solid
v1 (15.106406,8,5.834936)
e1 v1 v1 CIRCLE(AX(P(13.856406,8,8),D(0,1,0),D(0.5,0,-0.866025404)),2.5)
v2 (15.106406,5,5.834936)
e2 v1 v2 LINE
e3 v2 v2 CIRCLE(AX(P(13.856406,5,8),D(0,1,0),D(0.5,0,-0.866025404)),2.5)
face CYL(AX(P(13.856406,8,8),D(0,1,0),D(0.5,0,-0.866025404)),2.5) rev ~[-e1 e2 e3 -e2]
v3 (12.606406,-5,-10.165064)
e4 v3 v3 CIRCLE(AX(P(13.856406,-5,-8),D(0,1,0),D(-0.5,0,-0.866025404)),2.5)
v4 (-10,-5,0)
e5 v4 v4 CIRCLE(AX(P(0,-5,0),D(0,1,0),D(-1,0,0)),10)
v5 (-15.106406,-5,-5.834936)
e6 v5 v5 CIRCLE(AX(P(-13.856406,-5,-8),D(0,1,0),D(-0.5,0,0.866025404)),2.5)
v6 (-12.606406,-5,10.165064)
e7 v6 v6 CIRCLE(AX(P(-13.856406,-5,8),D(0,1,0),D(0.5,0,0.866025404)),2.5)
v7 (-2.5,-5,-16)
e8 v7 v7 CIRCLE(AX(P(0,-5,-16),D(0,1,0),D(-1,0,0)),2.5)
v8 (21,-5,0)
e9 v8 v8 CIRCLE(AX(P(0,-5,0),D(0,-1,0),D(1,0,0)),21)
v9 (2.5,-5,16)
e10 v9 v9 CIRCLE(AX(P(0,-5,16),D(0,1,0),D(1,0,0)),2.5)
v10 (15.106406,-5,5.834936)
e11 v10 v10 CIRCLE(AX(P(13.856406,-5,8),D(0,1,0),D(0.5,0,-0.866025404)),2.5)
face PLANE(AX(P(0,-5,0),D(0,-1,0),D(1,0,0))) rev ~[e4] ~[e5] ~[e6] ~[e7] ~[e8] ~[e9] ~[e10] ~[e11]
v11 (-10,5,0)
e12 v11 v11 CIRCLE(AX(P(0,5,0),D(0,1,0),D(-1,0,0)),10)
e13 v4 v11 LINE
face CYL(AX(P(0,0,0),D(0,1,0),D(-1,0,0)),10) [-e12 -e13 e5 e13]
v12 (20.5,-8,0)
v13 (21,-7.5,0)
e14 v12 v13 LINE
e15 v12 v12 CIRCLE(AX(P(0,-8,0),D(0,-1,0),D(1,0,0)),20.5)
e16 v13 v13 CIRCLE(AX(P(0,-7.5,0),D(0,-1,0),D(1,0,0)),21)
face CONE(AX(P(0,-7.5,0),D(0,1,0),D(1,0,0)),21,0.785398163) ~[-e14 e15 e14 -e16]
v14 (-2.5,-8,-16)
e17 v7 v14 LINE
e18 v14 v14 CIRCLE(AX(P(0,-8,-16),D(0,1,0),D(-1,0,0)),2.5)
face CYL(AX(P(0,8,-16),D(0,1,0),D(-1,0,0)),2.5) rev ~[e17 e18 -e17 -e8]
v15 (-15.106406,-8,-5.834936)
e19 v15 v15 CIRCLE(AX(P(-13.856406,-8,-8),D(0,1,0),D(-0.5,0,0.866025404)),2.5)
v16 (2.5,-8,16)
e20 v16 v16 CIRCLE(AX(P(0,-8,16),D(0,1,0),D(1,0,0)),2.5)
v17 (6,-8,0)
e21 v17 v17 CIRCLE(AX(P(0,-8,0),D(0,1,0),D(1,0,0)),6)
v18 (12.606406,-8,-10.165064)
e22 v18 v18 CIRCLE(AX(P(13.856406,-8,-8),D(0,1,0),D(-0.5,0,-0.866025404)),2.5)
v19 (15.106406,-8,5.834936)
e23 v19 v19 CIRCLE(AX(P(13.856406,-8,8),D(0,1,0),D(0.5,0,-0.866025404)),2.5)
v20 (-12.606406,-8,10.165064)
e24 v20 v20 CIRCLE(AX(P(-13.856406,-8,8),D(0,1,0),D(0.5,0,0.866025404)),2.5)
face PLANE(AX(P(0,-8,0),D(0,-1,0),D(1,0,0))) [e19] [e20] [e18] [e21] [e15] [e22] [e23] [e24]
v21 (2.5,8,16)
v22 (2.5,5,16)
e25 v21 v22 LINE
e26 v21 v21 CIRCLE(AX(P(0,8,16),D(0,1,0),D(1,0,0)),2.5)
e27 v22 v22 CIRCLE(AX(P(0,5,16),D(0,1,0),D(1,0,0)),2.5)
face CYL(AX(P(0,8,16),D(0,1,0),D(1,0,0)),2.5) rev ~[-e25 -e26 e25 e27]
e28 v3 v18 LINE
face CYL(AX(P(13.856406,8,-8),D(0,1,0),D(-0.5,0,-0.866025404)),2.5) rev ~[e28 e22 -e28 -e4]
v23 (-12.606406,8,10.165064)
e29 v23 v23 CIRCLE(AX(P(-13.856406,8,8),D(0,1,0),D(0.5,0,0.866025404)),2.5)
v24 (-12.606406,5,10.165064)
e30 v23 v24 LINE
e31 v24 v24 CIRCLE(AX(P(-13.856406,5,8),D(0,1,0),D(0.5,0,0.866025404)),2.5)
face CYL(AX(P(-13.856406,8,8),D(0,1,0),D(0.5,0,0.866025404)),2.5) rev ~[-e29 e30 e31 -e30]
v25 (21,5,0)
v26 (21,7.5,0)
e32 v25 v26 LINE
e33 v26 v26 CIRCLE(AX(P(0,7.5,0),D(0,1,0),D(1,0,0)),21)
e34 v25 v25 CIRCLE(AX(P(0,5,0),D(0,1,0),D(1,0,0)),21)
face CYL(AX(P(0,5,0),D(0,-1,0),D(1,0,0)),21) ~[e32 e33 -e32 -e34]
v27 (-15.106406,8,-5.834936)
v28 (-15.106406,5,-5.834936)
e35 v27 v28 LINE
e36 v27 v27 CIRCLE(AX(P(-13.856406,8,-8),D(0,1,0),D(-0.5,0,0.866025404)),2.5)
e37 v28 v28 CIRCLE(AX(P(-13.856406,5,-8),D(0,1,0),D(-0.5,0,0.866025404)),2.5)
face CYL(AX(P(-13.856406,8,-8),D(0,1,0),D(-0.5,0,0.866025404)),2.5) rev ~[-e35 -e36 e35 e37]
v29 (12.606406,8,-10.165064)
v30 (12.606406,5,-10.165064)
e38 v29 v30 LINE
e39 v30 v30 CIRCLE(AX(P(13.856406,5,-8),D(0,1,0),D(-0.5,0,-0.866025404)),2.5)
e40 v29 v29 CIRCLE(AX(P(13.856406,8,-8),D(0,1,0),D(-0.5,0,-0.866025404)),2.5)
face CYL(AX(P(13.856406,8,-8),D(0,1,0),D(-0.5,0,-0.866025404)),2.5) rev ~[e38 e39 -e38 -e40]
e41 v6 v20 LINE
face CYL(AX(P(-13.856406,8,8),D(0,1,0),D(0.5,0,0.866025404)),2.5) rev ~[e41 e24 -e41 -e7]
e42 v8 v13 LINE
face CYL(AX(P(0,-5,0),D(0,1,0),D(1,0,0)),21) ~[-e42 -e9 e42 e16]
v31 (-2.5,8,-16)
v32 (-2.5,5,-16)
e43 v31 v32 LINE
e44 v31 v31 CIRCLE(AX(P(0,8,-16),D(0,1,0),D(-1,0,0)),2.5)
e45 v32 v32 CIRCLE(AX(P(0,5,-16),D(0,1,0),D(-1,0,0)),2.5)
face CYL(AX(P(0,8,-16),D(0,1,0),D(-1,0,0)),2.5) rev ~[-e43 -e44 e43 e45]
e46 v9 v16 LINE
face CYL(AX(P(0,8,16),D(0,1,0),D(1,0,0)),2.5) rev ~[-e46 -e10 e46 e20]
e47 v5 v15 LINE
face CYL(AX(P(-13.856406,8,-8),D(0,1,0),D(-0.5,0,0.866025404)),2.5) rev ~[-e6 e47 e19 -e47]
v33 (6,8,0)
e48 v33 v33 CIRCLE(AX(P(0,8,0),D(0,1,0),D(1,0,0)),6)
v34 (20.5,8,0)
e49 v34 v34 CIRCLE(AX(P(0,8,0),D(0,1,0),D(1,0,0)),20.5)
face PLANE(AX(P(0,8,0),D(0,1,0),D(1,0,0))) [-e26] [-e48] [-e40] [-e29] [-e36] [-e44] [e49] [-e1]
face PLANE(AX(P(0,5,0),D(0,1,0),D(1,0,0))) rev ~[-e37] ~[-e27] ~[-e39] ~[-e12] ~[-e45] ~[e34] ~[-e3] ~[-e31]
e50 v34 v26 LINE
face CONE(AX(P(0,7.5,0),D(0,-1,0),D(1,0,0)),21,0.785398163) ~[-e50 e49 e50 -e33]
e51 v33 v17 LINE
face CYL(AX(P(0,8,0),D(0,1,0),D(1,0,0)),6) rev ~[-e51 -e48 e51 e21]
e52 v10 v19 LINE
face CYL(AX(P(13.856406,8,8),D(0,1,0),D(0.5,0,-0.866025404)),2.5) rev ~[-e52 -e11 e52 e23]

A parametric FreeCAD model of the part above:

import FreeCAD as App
import Part
import Sketcher

V = App.Vector


def edges_at(feature, points):
    """Names of the edges that pass closest to the given points."""
    edges = feature.Shape.Edges
    near = lambda p: min(range(len(edges)), key=lambda i: edges[i].distToShape(Part.Vertex(*p))[0])
    return sorted({f"Edge{near(p) + 1}" for p in points})

doc = App.newDocument("Part")
body = doc.addObject("PartDesign::Body", "Body")

sketch1 = body.newObject("Sketcher::SketchObject", "Sketch")
sketch1.AttachmentSupport = (doc.getObject("XZ_Plane"), [""])
sketch1.MapMode = "FlatFace"
sketch1.addGeometry(Part.Circle(V(0, 0, 0), V(0, 0, 1), 10), False)
sketch1.addConstraint([
    Sketcher.Constraint("Coincident", 0, 3, -1, 1),
    Sketcher.Constraint("Diameter", 0, 20.0),
])
pad1 = body.newObject("PartDesign::Pad", "Pad")
pad1.Profile = sketch1
pad1.Length = 10
pad1.Midplane = True

sketch2 = body.newObject("Sketcher::SketchObject", "Sketch001")
sketch2.AttachmentSupport = (doc.getObject("XZ_Plane"), [""])
sketch2.MapMode = "FlatFace"
sketch2.AttachmentOffset = App.Placement(V(0, 0, -5), App.Rotation())
sketch2.addGeometry(Part.Circle(V(0, 0, 0), V(0, 0, 1), 21), False)
sketch2.addConstraint([
    Sketcher.Constraint("Coincident", 0, 3, -1, 1),
    Sketcher.Constraint("Diameter", 0, 42.0),
])
pad2 = body.newObject("PartDesign::Pad", "Pad001")
pad2.Profile = sketch2
pad2.Length = 3
pad2.Reversed = True

sketch3 = body.newObject("Sketcher::SketchObject", "Sketch002")
sketch3.AttachmentSupport = (doc.getObject("XZ_Plane"), [""])
sketch3.MapMode = "FlatFace"
sketch3.AttachmentOffset = App.Placement(V(0, 0, 5), App.Rotation())
sketch3.addGeometry(Part.Circle(V(0, 0, 0), V(0, 0, 1), 21), False)
sketch3.addConstraint([
    Sketcher.Constraint("Coincident", 0, 3, -1, 1),
    Sketcher.Constraint("Diameter", 0, 42.0),
])
pad3 = body.newObject("PartDesign::Pad", "Pad002")
pad3.Profile = sketch3
pad3.Length = 3

sketch4 = body.newObject("Sketcher::SketchObject", "Sketch003")
sketch4.AttachmentSupport = (doc.getObject("XZ_Plane"), [""])
sketch4.MapMode = "FlatFace"
sketch4.AttachmentOffset = App.Placement(V(0, 0, -8), App.Rotation())
sketch4.addGeometry(Part.Circle(V(0, 0, 0), V(0, 0, 1), 6), False)
sketch4.addConstraint([
    Sketcher.Constraint("Coincident", 0, 3, -1, 1),
    Sketcher.Constraint("Diameter", 0, 12.0),
])
pocket1 = body.newObject("PartDesign::Pocket", "Pocket")
pocket1.Profile = sketch4
pocket1.Length = 16
pocket1.Reversed = True

sketch5 = body.newObject("Sketcher::SketchObject", "Sketch004")
sketch5.AttachmentSupport = (doc.getObject("XZ_Plane"), [""])
sketch5.MapMode = "FlatFace"
sketch5.AttachmentOffset = App.Placement(V(0, 0, -8), App.Rotation())
sketch5.addGeometry(Part.Circle(V(0, 16, 0), V(0, 0, 1), 2.5), False)
sketch5.addConstraint([
    Sketcher.Constraint("PointOnObject", 0, 3, -2),
    Sketcher.Constraint("Diameter", 0, 5.0),
    Sketcher.Constraint("DistanceY", -1, 1, 0, 3, 16.0),
])
pocket2 = body.newObject("PartDesign::Pocket", "Pocket001")
pocket2.Profile = sketch5
pocket2.Length = 16
pocket2.Reversed = True
doc.recompute()

polarpattern = body.newObject("PartDesign::PolarPattern", "PolarPattern")
polarpattern.Originals = [pocket2]
polarpattern.Axis = (doc.getObject("Y_Axis"), [""])
polarpattern.Angle = 360
polarpattern.Occurrences = 6
body.Tip = polarpattern
doc.recompute()

chamfer = body.newObject("PartDesign::Chamfer", "Chamfer")
chamfer.Base = (polarpattern, edges_at(polarpattern, [(-21, 8, 0)]))
chamfer.ChamferType = "Two distances"
chamfer.Size = 0.5
chamfer.Size2 = 0.5
doc.recompute()

chamfer2 = body.newObject("PartDesign::Chamfer", "Chamfer001")
chamfer2.Base = (chamfer, edges_at(chamfer, [(-21, -8, 0)]))
chamfer2.ChamferType = "Two distances"
chamfer2.Size = 0.5
chamfer2.Size2 = 0.5

doc.recompute()
